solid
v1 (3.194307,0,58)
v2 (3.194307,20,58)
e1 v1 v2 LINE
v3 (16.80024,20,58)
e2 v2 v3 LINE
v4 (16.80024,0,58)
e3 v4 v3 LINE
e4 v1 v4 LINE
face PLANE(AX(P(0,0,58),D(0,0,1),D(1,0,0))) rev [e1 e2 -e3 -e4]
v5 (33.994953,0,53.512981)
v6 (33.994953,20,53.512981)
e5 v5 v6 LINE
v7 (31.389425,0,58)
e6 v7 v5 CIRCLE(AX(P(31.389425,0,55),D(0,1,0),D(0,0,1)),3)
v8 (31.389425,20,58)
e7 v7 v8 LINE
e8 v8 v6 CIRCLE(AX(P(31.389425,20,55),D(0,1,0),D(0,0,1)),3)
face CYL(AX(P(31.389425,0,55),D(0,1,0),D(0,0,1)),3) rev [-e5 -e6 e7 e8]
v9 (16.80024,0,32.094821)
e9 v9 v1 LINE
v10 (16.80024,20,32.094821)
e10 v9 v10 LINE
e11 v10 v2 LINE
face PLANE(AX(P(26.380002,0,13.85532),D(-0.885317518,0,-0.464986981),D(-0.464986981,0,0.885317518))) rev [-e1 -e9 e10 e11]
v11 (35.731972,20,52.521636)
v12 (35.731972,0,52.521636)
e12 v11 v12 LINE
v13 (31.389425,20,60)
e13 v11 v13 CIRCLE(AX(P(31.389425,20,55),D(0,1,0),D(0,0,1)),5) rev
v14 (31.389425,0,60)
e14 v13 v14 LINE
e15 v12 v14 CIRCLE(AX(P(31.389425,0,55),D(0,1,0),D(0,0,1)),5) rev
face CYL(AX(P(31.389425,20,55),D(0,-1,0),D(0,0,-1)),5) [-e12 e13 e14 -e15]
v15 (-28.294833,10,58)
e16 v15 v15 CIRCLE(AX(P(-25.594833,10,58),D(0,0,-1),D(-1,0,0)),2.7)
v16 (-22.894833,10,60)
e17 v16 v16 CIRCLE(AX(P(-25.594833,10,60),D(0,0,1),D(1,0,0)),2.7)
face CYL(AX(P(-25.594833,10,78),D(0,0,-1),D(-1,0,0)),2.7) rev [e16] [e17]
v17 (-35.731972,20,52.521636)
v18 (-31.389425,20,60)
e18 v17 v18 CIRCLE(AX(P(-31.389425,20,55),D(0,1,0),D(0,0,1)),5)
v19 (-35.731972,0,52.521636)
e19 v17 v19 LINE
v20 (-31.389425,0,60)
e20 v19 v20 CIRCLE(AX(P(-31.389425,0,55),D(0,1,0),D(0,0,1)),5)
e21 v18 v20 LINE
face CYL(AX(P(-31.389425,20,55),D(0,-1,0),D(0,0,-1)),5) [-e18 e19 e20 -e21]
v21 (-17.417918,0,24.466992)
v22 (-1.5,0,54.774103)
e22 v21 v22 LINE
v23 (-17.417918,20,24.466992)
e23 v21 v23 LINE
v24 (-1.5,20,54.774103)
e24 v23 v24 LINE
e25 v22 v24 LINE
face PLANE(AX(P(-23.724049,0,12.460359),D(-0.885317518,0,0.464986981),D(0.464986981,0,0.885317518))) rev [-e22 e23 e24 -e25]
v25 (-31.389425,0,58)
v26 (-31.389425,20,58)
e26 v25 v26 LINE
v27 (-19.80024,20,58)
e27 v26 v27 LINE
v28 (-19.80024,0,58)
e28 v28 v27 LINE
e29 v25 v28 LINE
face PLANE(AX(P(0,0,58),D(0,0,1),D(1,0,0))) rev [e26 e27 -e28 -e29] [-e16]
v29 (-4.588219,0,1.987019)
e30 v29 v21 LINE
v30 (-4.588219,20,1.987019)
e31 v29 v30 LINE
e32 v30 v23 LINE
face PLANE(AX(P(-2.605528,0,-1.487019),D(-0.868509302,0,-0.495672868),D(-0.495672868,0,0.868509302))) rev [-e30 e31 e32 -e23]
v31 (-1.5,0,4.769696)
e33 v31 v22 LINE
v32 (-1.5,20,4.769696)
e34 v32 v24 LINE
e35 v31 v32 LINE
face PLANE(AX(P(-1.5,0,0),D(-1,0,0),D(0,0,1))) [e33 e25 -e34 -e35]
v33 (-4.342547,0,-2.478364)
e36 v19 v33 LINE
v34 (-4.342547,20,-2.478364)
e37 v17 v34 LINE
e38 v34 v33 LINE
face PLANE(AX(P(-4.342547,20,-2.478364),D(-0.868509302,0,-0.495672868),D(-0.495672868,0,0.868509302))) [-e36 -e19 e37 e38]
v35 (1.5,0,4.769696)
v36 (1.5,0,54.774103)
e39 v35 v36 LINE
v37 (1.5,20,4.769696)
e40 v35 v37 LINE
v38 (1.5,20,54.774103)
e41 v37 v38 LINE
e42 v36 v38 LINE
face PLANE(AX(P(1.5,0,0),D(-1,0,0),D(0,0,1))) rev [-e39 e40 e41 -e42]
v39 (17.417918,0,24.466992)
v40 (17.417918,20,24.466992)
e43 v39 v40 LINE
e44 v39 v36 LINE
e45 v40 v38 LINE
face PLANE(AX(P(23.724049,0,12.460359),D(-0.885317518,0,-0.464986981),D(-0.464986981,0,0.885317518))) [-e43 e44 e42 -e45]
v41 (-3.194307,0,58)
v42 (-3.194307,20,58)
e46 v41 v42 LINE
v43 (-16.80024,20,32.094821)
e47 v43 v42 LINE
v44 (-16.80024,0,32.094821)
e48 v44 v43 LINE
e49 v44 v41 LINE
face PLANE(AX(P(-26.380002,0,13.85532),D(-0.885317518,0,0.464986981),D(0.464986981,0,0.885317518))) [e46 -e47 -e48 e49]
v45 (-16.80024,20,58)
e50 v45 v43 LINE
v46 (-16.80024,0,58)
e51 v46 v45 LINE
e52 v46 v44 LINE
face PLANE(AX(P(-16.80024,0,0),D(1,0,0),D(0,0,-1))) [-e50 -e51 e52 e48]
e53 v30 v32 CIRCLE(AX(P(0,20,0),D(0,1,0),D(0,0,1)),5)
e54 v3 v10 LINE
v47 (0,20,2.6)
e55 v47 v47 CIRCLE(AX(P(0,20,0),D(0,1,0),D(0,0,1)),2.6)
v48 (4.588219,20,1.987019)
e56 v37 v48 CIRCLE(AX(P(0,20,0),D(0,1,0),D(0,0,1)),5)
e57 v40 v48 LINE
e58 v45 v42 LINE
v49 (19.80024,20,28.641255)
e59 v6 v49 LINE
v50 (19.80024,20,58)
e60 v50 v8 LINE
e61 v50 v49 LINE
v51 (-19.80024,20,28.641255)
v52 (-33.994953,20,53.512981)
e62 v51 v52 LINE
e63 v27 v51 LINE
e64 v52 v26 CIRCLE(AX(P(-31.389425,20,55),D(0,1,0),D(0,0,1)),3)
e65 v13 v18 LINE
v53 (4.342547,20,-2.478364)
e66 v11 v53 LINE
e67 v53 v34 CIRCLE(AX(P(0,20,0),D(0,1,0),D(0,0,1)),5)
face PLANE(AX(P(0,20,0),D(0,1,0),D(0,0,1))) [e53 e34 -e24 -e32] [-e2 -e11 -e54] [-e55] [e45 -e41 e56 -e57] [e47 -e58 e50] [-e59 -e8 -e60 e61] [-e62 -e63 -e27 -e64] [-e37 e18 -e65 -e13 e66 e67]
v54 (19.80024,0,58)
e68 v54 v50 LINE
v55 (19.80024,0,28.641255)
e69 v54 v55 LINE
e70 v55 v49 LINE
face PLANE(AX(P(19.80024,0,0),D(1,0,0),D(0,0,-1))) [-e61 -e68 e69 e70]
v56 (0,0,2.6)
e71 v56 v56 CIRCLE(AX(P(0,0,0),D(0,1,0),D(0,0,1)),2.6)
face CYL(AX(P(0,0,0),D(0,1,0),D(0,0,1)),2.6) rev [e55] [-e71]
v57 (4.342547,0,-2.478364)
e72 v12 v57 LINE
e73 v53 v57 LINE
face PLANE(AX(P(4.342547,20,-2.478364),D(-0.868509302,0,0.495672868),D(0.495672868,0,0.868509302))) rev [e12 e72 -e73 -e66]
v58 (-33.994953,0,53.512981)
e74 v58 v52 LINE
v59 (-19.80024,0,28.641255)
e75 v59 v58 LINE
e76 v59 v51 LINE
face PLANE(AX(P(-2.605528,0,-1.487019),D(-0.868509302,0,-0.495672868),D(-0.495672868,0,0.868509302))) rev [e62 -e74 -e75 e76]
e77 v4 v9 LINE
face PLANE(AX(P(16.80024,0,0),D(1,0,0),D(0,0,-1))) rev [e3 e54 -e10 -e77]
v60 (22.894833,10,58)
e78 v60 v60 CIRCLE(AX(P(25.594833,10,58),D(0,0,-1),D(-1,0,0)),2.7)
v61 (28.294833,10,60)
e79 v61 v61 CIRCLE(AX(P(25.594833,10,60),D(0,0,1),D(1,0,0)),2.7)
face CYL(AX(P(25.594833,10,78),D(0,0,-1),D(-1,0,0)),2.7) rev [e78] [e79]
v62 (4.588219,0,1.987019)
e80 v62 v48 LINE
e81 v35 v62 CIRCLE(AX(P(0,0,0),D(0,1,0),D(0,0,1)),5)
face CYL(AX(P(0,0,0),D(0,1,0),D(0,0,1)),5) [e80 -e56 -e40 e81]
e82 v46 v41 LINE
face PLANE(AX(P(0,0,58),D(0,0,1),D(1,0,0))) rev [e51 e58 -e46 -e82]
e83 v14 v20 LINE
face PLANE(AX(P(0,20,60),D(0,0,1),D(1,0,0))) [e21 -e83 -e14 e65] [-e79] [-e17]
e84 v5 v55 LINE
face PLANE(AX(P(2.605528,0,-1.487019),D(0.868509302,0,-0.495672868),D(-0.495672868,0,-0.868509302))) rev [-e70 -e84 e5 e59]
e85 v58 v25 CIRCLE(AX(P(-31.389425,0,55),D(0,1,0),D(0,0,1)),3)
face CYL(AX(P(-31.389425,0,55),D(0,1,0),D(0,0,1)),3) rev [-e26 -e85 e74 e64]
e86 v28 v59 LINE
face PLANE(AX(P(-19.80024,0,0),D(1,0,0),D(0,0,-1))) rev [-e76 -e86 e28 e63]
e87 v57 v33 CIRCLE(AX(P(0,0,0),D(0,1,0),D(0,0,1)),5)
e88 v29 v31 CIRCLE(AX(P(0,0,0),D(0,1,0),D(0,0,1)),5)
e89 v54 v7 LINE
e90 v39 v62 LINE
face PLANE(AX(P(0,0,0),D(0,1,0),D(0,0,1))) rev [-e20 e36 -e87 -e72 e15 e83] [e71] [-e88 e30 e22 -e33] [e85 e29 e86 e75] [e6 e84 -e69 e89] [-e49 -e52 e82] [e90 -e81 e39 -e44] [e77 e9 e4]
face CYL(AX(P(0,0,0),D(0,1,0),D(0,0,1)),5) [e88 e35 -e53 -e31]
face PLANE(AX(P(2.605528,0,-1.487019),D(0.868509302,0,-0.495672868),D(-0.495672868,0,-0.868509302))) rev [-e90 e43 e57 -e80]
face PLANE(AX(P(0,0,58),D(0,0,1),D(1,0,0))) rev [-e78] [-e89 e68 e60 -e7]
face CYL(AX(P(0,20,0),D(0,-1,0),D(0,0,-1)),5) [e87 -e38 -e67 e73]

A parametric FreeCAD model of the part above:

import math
import FreeCAD as App
import Part
import Sketcher

doc = App.newDocument("Part")
body = doc.addObject("PartDesign::Body", "Body")

sketch1 = body.newObject("Sketcher::SketchObject", "Sketch")
sketch1.AttachmentSupport = (doc.getObject("XZ_Plane"), [""])
sketch1.MapMode = "FlatFace"
sketch1.addGeometry(Part.LineSegment(App.Vector(-4, -2, 0), App.Vector(-36, 53, 0)), False)
sketch1.addGeometry(Part.ArcOfCircle(Part.Circle(App.Vector(-31, 55, 0), App.Vector(0, 0, 1), 5), math.radians(90), math.radians(210)), False)
sketch1.addGeometry(Part.LineSegment(App.Vector(-31, 60, 0), App.Vector(31, 60, 0)), False)
sketch1.addGeometry(Part.ArcOfCircle(Part.Circle(App.Vector(31, 55, 0), App.Vector(0, 0, 1), 5), math.radians(-30), math.radians(90)), False)
sketch1.addGeometry(Part.LineSegment(App.Vector(36, 53, 0), App.Vector(4, -2, 0)), False)
sketch1.addGeometry(Part.ArcOfCircle(Part.Circle(App.Vector(0, 0, 0), App.Vector(0, 0, 1), 5), math.radians(-150), math.radians(-30)), False)
sketch1.addConstraint(Sketcher.Constraint("Tangent", 0, 2, 1, 2))
sketch1.addConstraint(Sketcher.Constraint("Tangent", 1, 1, 2, 1))
sketch1.addConstraint(Sketcher.Constraint("Tangent", 2, 2, 3, 2))
sketch1.addConstraint(Sketcher.Constraint("Tangent", 3, 1, 4, 1))
sketch1.addConstraint(Sketcher.Constraint("Tangent", 4, 2, 5, 2))
sketch1.addConstraint(Sketcher.Constraint("Tangent", 5, 1, 0, 1))
sketch1.addConstraint(Sketcher.Constraint("Horizontal", 2))
sketch1.addConstraint(Sketcher.Constraint("Coincident", 5, 3, -1, 1))
sketch1.addConstraint(Sketcher.Constraint("Equal", 1, 3))
sketch1.addConstraint(Sketcher.Constraint("Equal", 3, 5))
sketch1.addConstraint(Sketcher.Constraint("Horizontal", 0, 2, 3, 1))
sketch1.addConstraint(Sketcher.Constraint("Radius", 1, 5.0))
sketch1.addConstraint(Sketcher.Constraint("DistanceY", -1, 1, 1, 3, 55.0))
sketch1.addConstraint(Sketcher.Constraint("Distance", 0, 63.326898))
pad1 = body.newObject("PartDesign::Pad", "Pad")
pad1.Profile = sketch1
pad1.Length = 20
pad1.Reversed = True

sketch2 = body.newObject("Sketcher::SketchObject", "Sketch001")
sketch2.AttachmentSupport = (doc.getObject("XZ_Plane"), [""])
sketch2.MapMode = "FlatFace"
sketch2.addGeometry(Part.LineSegment(App.Vector(-19.8, 58, 0), App.Vector(-19.8, 28.6, 0)), False)
sketch2.addGeometry(Part.LineSegment(App.Vector(-19.8, 28.6, 0), App.Vector(-34, 53.5, 0)), False)
sketch2.addGeometry(Part.ArcOfCircle(Part.Circle(App.Vector(-31.4, 55, 0), App.Vector(0, 0, 1), 3), math.radians(90), math.radians(210)), False)
sketch2.addGeometry(Part.LineSegment(App.Vector(-31.4, 58, 0), App.Vector(-19.8, 58, 0)), False)
sketch2.addGeometry(Part.LineSegment(App.Vector(-16.8, 58, 0), App.Vector(-3.2, 58, 0)), False)
sketch2.addGeometry(Part.LineSegment(App.Vector(-3.2, 58, 0), App.Vector(-16.8, 32.1, 0)), False)
sketch2.addGeometry(Part.LineSegment(App.Vector(-16.8, 32.1, 0), App.Vector(-16.8, 58, 0)), False)
sketch2.addGeometry(Part.LineSegment(App.Vector(-1.5, 54.8, 0), App.Vector(-1.5, 4.8, 0)), False)
sketch2.addGeometry(Part.ArcOfCircle(Part.Circle(App.Vector(0, 0, 0), App.Vector(0, 0, 1), 5), math.radians(107), math.radians(157)), False)
sketch2.addGeometry(Part.LineSegment(App.Vector(-4.6, 2, 0), App.Vector(-17.4, 24.5, 0)), False)
sketch2.addGeometry(Part.LineSegment(App.Vector(-17.4, 24.5, 0), App.Vector(-1.5, 54.8, 0)), False)
sketch2.addGeometry(Part.ArcOfCircle(Part.Circle(App.Vector(0, 0, 0), App.Vector(0, 0, 1), 5), math.radians(23), math.radians(73)), False)
sketch2.addGeometry(Part.LineSegment(App.Vector(1.5, 4.8, 0), App.Vector(1.5, 54.8, 0)), False)
sketch2.addGeometry(Part.LineSegment(App.Vector(1.5, 54.8, 0), App.Vector(17.4, 24.5, 0)), False)
sketch2.addGeometry(Part.LineSegment(App.Vector(17.4, 24.5, 0), App.Vector(4.6, 2, 0)), False)
sketch2.addGeometry(Part.LineSegment(App.Vector(34, 53.5, 0), App.Vector(19.8, 28.6, 0)), False)
sketch2.addGeometry(Part.LineSegment(App.Vector(19.8, 28.6, 0), App.Vector(19.8, 58, 0)), False)
sketch2.addGeometry(Part.LineSegment(App.Vector(19.8, 58, 0), App.Vector(31.4, 58, 0)), False)
sketch2.addGeometry(Part.ArcOfCircle(Part.Circle(App.Vector(31.4, 55, 0), App.Vector(0, 0, 1), 3), math.radians(-30), math.radians(90)), False)
sketch2.addGeometry(Part.LineSegment(App.Vector(16.8, 32.1, 0), App.Vector(3.2, 58, 0)), False)
sketch2.addGeometry(Part.LineSegment(App.Vector(3.2, 58, 0), App.Vector(16.8, 58, 0)), False)
sketch2.addGeometry(Part.LineSegment(App.Vector(16.8, 58, 0), App.Vector(16.8, 32.1, 0)), False)
sketch2.addConstraint(Sketcher.Constraint("Coincident", 0, 2, 1, 1))
sketch2.addConstraint(Sketcher.Constraint("Tangent", 1, 2, 2, 2))
sketch2.addConstraint(Sketcher.Constraint("Tangent", 2, 1, 3, 1))
sketch2.addConstraint(Sketcher.Constraint("Coincident", 3, 2, 0, 1))
sketch2.addConstraint(Sketcher.Constraint("Coincident", 4, 2, 5, 1))
sketch2.addConstraint(Sketcher.Constraint("Coincident", 5, 2, 6, 1))
sketch2.addConstraint(Sketcher.Constraint("Coincident", 6, 2, 4, 1))
sketch2.addConstraint(Sketcher.Constraint("Coincident", 7, 2, 8, 1))
sketch2.addConstraint(Sketcher.Constraint("Coincident", 8, 2, 9, 1))
sketch2.addConstraint(Sketcher.Constraint("Coincident", 9, 2, 10, 1))
sketch2.addConstraint(Sketcher.Constraint("Coincident", 10, 2, 7, 1))
sketch2.addConstraint(Sketcher.Constraint("Coincident", 11, 2, 12, 1))
sketch2.addConstraint(Sketcher.Constraint("Coincident", 12, 2, 13, 1))
sketch2.addConstraint(Sketcher.Constraint("Coincident", 13, 2, 14, 1))
sketch2.addConstraint(Sketcher.Constraint("Coincident", 14, 2, 11, 1))
sketch2.addConstraint(Sketcher.Constraint("Coincident", 15, 2, 16, 1))
sketch2.addConstraint(Sketcher.Constraint("Coincident", 16, 2, 17, 1))
sketch2.addConstraint(Sketcher.Constraint("Tangent", 17, 2, 18, 2))
sketch2.addConstraint(Sketcher.Constraint("Tangent", 18, 1, 15, 1))
sketch2.addConstraint(Sketcher.Constraint("Coincident", 19, 2, 20, 1))
sketch2.addConstraint(Sketcher.Constraint("Coincident", 20, 2, 21, 1))
sketch2.addConstraint(Sketcher.Constraint("Coincident", 21, 2, 19, 1))
sketch2.addConstraint(Sketcher.Constraint("Vertical", 0))
sketch2.addConstraint(Sketcher.Constraint("Horizontal", 3))
sketch2.addConstraint(Sketcher.Constraint("Horizontal", 4))
sketch2.addConstraint(Sketcher.Constraint("Vertical", 6))
sketch2.addConstraint(Sketcher.Constraint("Vertical", 7))
sketch2.addConstraint(Sketcher.Constraint("Vertical", 12))
sketch2.addConstraint(Sketcher.Constraint("Vertical", 16))
sketch2.addConstraint(Sketcher.Constraint("Horizontal", 17))
sketch2.addConstraint(Sketcher.Constraint("Horizontal", 20))
sketch2.addConstraint(Sketcher.Constraint("Vertical", 21))
sketch2.addConstraint(Sketcher.Constraint("Coincident", 8, 3, -1, 1))
sketch2.addConstraint(Sketcher.Constraint("Coincident", 11, 3, -1, 1))
sketch2.addConstraint(Sketcher.Constraint("Equal", 8, 11))
sketch2.addConstraint(Sketcher.Constraint("Equal", 2, 18))
sketch2.addConstraint(Sketcher.Constraint("Symmetric", 2, 3, 18, 3, -2))
sketch2.addConstraint(Sketcher.Constraint("Symmetric", 10, 2, 12, 2, -2))
sketch2.addConstraint(Sketcher.Constraint("Symmetric", 9, 2, 13, 2, -2))
sketch2.addConstraint(Sketcher.Constraint("Symmetric", 0, 2, 15, 2, -2))
sketch2.addConstraint(Sketcher.Constraint("Symmetric", 4, 2, 19, 2, -2))
sketch2.addConstraint(Sketcher.Constraint("Symmetric", 5, 2, 21, 2, -2))
sketch2.addConstraint(Sketcher.Constraint("Parallel", 1, 9))
sketch2.addConstraint(Sketcher.Constraint("Parallel", 5, 10))
sketch2.addConstraint(Sketcher.Constraint("Parallel", 14, 15))
sketch2.addConstraint(Sketcher.Constraint("Horizontal", 3, 2, 4, 2))
sketch2.addConstraint(Sketcher.Constraint("Radius", 2, 3.0))
sketch2.addConstraint(Sketcher.Constraint("Radius", 8, 5.0))
sketch2.addConstraint(Sketcher.Constraint("DistanceY", -1, 1, 2, 3, 55.0))
sketch2.addConstraint(Sketcher.Constraint("DistanceX", 0, 2, 5, 2, 3.0))
sketch2.addConstraint(Sketcher.Constraint("DistanceX", 7, 2, 11, 2, 3.0))
sketch2.addConstraint(Sketcher.Constraint("Distance", 9, 25.8834))
sketch2.addConstraint(Sketcher.Constraint("DistanceY", 6, 1, 6, 2, 25.905179))
sketch2.addConstraint(Sketcher.Constraint("DistanceX", 9, 2, 8, 2, 12.829699))
sketch2.addConstraint(Sketcher.Constraint("Distance", 1, 28.63726))
sketch2.addConstraint(Sketcher.Constraint("Distance", 5, 29.26089))
sketch2.addConstraint(Sketcher.Constraint("Distance", 10, 34.233041))
sketch2.addConstraint(Sketcher.Constraint("DistanceX", 0, 2, -1, 1, 19.80024))
pocket1 = body.newObject("PartDesign::Pocket", "Pocket")
pocket1.Profile = sketch2
pocket1.Length = 20

sketch3 = body.newObject("Sketcher::SketchObject", "Sketch002")
sketch3.AttachmentSupport = (doc.getObject("XZ_Plane"), [""])
sketch3.MapMode = "FlatFace"
sketch3.AttachmentOffset = App.Placement(App.Vector(0, 0, -20), App.Rotation())
sketch3.addGeometry(Part.Circle(App.Vector(0, 0, 0), App.Vector(0, 0, 1), 2.6), False)
sketch3.addConstraint(Sketcher.Constraint("Coincident", 0, 3, -1, 1))
sketch3.addConstraint(Sketcher.Constraint("Diameter", 0, 5.2))
pocket2 = body.newObject("PartDesign::Pocket", "Pocket001")
pocket2.Profile = sketch3
pocket2.Length = 20
pocket2.Reversed = True

sketch4 = body.newObject("Sketcher::SketchObject", "Sketch003")
sketch4.AttachmentSupport = (doc.getObject("XY_Plane"), [""])
sketch4.MapMode = "FlatFace"
sketch4.AttachmentOffset = App.Placement(App.Vector(0, 0, 58), App.Rotation())
sketch4.addGeometry(Part.Circle(App.Vector(-25.6, 10, 0), App.Vector(0, 0, 1), 2.7), False)
sketch4.addGeometry(Part.Circle(App.Vector(25.6, 10, 0), App.Vector(0, 0, 1), 2.7), False)
sketch4.addConstraint(Sketcher.Constraint("Equal", 0, 1))
sketch4.addConstraint(Sketcher.Constraint("Symmetric", 0, 3, 1, 3, -2))
sketch4.addConstraint(Sketcher.Constraint("Diameter", 0, 5.4))
sketch4.addConstraint(Sketcher.Constraint("DistanceY", -1, 1, 0, 3, 10.0))
sketch4.addConstraint(Sketcher.Constraint("DistanceX", 0, 3, -1, 1, 25.594833))
pocket3 = body.newObject("PartDesign::Pocket", "Pocket002")
pocket3.Profile = sketch4
pocket3.Length = 20
pocket3.Reversed = True

doc.recompute()
